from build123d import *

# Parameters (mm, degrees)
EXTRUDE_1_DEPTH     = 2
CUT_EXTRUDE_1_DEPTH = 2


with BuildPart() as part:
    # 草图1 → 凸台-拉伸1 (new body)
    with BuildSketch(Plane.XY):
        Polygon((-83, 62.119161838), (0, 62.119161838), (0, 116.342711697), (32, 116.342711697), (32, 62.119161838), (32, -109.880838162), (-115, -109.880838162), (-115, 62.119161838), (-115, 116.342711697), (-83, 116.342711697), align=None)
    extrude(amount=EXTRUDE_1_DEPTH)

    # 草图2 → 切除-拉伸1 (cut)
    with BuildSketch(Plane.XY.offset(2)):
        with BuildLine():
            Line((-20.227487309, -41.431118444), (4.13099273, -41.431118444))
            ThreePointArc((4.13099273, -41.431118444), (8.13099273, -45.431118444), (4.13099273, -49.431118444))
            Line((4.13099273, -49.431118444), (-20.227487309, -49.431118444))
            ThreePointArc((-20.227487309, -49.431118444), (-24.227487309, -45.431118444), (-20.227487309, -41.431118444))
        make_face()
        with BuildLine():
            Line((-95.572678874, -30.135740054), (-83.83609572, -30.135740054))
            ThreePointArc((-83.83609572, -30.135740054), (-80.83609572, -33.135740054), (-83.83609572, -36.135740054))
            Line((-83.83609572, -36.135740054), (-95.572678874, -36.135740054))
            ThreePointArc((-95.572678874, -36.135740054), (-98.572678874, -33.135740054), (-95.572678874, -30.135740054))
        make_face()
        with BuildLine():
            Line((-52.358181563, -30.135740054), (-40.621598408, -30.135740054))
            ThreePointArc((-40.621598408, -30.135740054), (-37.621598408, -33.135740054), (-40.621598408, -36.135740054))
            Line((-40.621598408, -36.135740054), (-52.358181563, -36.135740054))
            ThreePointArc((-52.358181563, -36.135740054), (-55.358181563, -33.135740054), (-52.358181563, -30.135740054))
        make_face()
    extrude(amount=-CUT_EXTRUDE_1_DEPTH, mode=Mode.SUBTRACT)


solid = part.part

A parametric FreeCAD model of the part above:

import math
import FreeCAD as App
import Part
import Sketcher
from FreeCAD import Vector


def add_polygon(sketch, points):
    """Adds a closed chain of lines whose ends are joined by coincident constraints."""
    first, n = sketch.GeometryCount, len(points)
    for a, b in zip(points, points[1:] + points[:1]):
        sketch.addGeometry(Part.LineSegment(App.Vector(*a, 0), App.Vector(*b, 0)), False)
    for i in range(n):
        sketch.addConstraint(Sketcher.Constraint("Coincident", first + i, 2, first + (i + 1) % n, 1))

doc = App.newDocument("Part")
body = doc.addObject("PartDesign::Body", "Body")

# Sketch on XY plane
sketch1 = body.newObject("Sketcher::SketchObject", "Sketch")
sketch1.AttachmentSupport = (doc.getObject("XY_Plane"), [""])
sketch1.MapMode = "FlatFace"
add_polygon(sketch1, [(0, 62), (-83, 62), (-83, 116), (-115, 116), (-115, -110), (32, -110), (32, 116), (0, 116)])  # lines 0-7
sketch1.addConstraint([
    Sketcher.Constraint("Horizontal", 0),
    Sketcher.Constraint("Vertical", 1),
    Sketcher.Constraint("Horizontal", 2),
    Sketcher.Constraint("Vertical", 3),
    Sketcher.Constraint("Horizontal", 4),
    Sketcher.Constraint("Vertical", 5),
    Sketcher.Constraint("Horizontal", 6),
    Sketcher.Constraint("Vertical", 7),
    Sketcher.Constraint("PointOnObject", 6, 2, -2),
    Sketcher.Constraint("Horizontal", 2, 2, 5, 2),
    Sketcher.Constraint("Equal", 2, 6),
    Sketcher.Constraint("DistanceX", 0, 2, 0, 1, 83.0),
    Sketcher.Constraint("DistanceX", 2, 2, 2, 1, 32.0),
    Sketcher.Constraint("DistanceY", 3, 2, 0, 2, 172.0),
    Sketcher.Constraint("DistanceY", 1, 1, 1, 2, 54.22355),
    Sketcher.Constraint("DistanceY", -1, 1, 0, 2, 62.119162),
])
pad1 = body.newObject("PartDesign::Pad", "Pad")
pad1.Profile = sketch1
pad1.Length = 2

# Sketch on XY plane
sketch2 = body.newObject("Sketcher::SketchObject", "Sketch001")
sketch2.AttachmentSupport = (doc.getObject("XY_Plane"), [""])
sketch2.MapMode = "FlatFace"
sketch2.AttachmentOffset = App.Placement(Vector(0, 0, 2), App.Rotation())
sketch2.addGeometry([
    Part.LineSegment(Vector(4.1, -41.4, 0), Vector(-20.2, -41.4, 0)),  # 0
    Part.ArcOfCircle(Part.Circle(Vector(-20.2, -45.4, 0), Vector(0, 0, 1), 4), math.radians(90), math.radians(270)),  # 1
    Part.LineSegment(Vector(-20.2, -49.4, 0), Vector(4.1, -49.4, 0)),  # 2
    Part.ArcOfCircle(Part.Circle(Vector(4.1, -45.4, 0), Vector(0, 0, 1), 4), math.radians(-90), math.radians(90)),  # 3
    Part.LineSegment(Vector(-83.8, -30.1, 0), Vector(-95.6, -30.1, 0)),  # 4
    Part.ArcOfCircle(Part.Circle(Vector(-95.6, -33.1, 0), Vector(0, 0, 1), 3), math.radians(90), math.radians(270)),  # 5
    Part.LineSegment(Vector(-95.6, -36.1, 0), Vector(-83.8, -36.1, 0)),  # 6
    Part.ArcOfCircle(Part.Circle(Vector(-83.8, -33.1, 0), Vector(0, 0, 1), 3), math.radians(-90), math.radians(90)),  # 7
    Part.LineSegment(Vector(-40.6, -30.1, 0), Vector(-52.4, -30.1, 0)),  # 8
    Part.ArcOfCircle(Part.Circle(Vector(-52.4, -33.1, 0), Vector(0, 0, 1), 3), math.radians(90), math.radians(270)),  # 9
    Part.LineSegment(Vector(-52.4, -36.1, 0), Vector(-40.6, -36.1, 0)),  # 10
    Part.ArcOfCircle(Part.Circle(Vector(-40.6, -33.1, 0), Vector(0, 0, 1), 3), math.radians(-90), math.radians(90)),  # 11
], False)
sketch2.addConstraint([
    Sketcher.Constraint("Tangent", 0, 2, 1, 1),
    Sketcher.Constraint("Tangent", 1, 2, 2, 1),
    Sketcher.Constraint("Tangent", 2, 2, 3, 1),
    Sketcher.Constraint("Tangent", 3, 2, 0, 1),
    Sketcher.Constraint("Tangent", 4, 2, 5, 1),
    Sketcher.Constraint("Tangent", 5, 2, 6, 1),
    Sketcher.Constraint("Tangent", 6, 2, 7, 1),
    Sketcher.Constraint("Tangent", 7, 2, 4, 1),
    Sketcher.Constraint("Tangent", 8, 2, 9, 1),
    Sketcher.Constraint("Tangent", 9, 2, 10, 1),
    Sketcher.Constraint("Tangent", 10, 2, 11, 1),
    Sketcher.Constraint("Tangent", 11, 2, 8, 1),
    Sketcher.Constraint("Horizontal", 0),
    Sketcher.Constraint("Horizontal", 2),
    Sketcher.Constraint("Horizontal", 4),
    Sketcher.Constraint("Horizontal", 6),
    Sketcher.Constraint("Horizontal", 8),
    Sketcher.Constraint("Horizontal", 10),
    Sketcher.Constraint("Equal", 7, 9),
    Sketcher.Constraint("Horizontal", 7, 3, 9, 3),
    Sketcher.Constraint("Equal", 6, 8),
    Sketcher.Constraint("Radius", 1, 4.0),
    Sketcher.Constraint("Radius", 5, 3.0),
    Sketcher.Constraint("DistanceX", 0, 2, 0, 1, 24.35848),
    Sketcher.Constraint("DistanceX", 11, 3, -1, 1, 40.621598),
    Sketcher.Constraint("DistanceX", 4, 2, 4, 1, 11.736583),
    Sketcher.Constraint("DistanceY", 1, 3, -1, 1, 45.431118),
    Sketcher.Constraint("DistanceX", 5, 3, -1, 1, 95.572679),
    Sketcher.Constraint("DistanceY", 5, 3, -1, 1, 33.13574),
    Sketcher.Constraint("DistanceX", 5, 3, 1, 3, 75.345192),
])
pocket1 = body.newObject("PartDesign::Pocket", "Pocket")
pocket1.Profile = sketch2
pocket1.Length = 2

doc.recompute()
